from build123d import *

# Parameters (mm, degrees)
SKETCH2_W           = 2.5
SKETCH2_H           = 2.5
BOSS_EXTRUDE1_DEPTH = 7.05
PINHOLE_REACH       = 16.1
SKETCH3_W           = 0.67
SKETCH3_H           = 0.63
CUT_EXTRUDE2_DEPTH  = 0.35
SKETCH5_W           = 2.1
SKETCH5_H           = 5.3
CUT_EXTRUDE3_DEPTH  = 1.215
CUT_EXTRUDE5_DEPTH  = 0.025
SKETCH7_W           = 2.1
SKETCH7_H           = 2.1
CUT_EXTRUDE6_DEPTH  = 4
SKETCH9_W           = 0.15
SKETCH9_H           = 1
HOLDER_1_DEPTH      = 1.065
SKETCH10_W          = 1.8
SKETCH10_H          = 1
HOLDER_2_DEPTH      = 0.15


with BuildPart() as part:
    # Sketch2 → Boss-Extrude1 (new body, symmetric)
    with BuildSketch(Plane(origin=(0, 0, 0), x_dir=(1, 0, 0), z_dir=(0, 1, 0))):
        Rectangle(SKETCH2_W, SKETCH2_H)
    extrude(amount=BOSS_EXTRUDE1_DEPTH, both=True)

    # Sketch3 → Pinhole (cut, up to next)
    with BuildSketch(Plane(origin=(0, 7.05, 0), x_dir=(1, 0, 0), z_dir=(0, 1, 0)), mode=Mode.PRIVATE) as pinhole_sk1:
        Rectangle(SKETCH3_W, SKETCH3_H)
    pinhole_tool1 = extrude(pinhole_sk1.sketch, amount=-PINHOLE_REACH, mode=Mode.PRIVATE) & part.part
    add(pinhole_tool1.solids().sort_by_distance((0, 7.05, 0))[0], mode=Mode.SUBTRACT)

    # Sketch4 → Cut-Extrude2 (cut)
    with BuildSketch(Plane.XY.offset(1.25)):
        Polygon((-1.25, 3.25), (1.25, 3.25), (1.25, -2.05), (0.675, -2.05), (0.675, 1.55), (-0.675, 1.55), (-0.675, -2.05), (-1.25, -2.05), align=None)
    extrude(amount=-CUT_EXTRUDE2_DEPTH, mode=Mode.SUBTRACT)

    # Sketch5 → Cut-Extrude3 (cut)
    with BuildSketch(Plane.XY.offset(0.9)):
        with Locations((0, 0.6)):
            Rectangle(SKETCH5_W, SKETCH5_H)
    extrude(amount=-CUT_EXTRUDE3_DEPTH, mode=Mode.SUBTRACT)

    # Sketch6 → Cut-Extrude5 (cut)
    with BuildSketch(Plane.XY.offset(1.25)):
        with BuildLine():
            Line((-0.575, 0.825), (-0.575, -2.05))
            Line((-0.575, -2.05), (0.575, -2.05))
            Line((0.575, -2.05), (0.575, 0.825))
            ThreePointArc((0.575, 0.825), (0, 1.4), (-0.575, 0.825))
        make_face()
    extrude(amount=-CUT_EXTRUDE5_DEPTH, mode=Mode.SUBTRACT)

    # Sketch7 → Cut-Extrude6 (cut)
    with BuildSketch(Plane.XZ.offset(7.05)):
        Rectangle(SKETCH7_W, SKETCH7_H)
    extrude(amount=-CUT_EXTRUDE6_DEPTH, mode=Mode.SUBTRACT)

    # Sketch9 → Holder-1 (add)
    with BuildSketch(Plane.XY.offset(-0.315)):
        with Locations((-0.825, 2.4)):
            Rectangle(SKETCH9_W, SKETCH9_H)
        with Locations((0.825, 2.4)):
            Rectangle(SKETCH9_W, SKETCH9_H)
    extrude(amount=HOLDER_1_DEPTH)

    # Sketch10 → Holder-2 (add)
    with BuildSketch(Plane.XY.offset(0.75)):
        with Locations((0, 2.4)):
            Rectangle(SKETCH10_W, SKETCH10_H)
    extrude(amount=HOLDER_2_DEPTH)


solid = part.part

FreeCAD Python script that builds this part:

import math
import FreeCAD as App
import Part
import Sketcher

V = App.Vector


def add_polygon(sketch, points):
    """Adds a closed chain of lines whose ends are joined by coincident constraints."""
    first, n = sketch.GeometryCount, len(points)
    for a, b in zip(points, points[1:] + points[:1]):
        sketch.addGeometry(Part.LineSegment(App.Vector(*a, 0), App.Vector(*b, 0)), False)
    for i in range(n):
        sketch.addConstraint(Sketcher.Constraint("Coincident", first + i, 2, first + (i + 1) % n, 1))

doc = App.newDocument("Part")
body = doc.addObject("PartDesign::Body", "Body")

sketch1 = body.newObject("Sketcher::SketchObject", "Sketch")
sketch1.AttachmentSupport = (doc.getObject("XZ_Plane"), [""])
sketch1.MapMode = "FlatFace"
add_polygon(sketch1, [(-1.2, -1.2), (-1.2, 1.2), (1.2, 1.2), (1.2, -1.2)])
sketch1.addConstraint([
    Sketcher.Constraint("Vertical", 0),
    Sketcher.Constraint("Horizontal", 1),
    Sketcher.Constraint("Vertical", 2),
    Sketcher.Constraint("Horizontal", 3),
    Sketcher.Constraint("Symmetric", 0, 2, 2, 2, -1, 1),
    Sketcher.Constraint("Equal", 3, 0),
    Sketcher.Constraint("DistanceX", 1, 1, 1, 2, 2.5),
])
pad1 = body.newObject("PartDesign::Pad", "Pad")
pad1.Profile = sketch1
pad1.Length = 14.1
pad1.Midplane = True

sketch2 = body.newObject("Sketcher::SketchObject", "Sketch001")
sketch2.AttachmentSupport = (doc.getObject("XZ_Plane"), [""])
sketch2.MapMode = "FlatFace"
sketch2.AttachmentOffset = App.Placement(V(0, 0, -7.05), App.Rotation())
add_polygon(sketch2, [(-0.3, -0.3), (-0.3, 0.3), (0.3, 0.3), (0.3, -0.3)])
sketch2.addConstraint([
    Sketcher.Constraint("Vertical", 0),
    Sketcher.Constraint("Horizontal", 1),
    Sketcher.Constraint("Vertical", 2),
    Sketcher.Constraint("Horizontal", 3),
    Sketcher.Constraint("Symmetric", 0, 2, 2, 2, -1, 1),
    Sketcher.Constraint("DistanceX", 1, 1, 1, 2, 0.67),
    Sketcher.Constraint("DistanceY", 0, 1, 0, 2, 0.63),
])
pocket1 = body.newObject("PartDesign::Pocket", "Pocket")
pocket1.Profile = sketch2
pocket1.Type = "UpToFirst"
pocket1.Reversed = True

sketch3 = body.newObject("Sketcher::SketchObject", "Sketch002")
sketch3.AttachmentSupport = (doc.getObject("XY_Plane"), [""])
sketch3.MapMode = "FlatFace"
sketch3.AttachmentOffset = App.Placement(V(0, 0, 1.25), App.Rotation())
add_polygon(sketch3, [(1.2, 3.2), (-1.2, 3.2), (-1.2, -2), (-0.7, -2), (-0.7, 1.6), (0.7, 1.6), (0.7, -2), (1.2, -2)])
sketch3.addConstraint([
    Sketcher.Constraint("Horizontal", 0),
    Sketcher.Constraint("Vertical", 1),
    Sketcher.Constraint("Horizontal", 2),
    Sketcher.Constraint("Vertical", 3),
    Sketcher.Constraint("Horizontal", 4),
    Sketcher.Constraint("Vertical", 5),
    Sketcher.Constraint("Horizontal", 6),
    Sketcher.Constraint("Vertical", 7),
    Sketcher.Constraint("Symmetric", 2, 2, 5, 2, -2),
    Sketcher.Constraint("Equal", 2, 6),
    Sketcher.Constraint("DistanceX", 0, 2, 0, 1, 2.5),
    Sketcher.Constraint("DistanceY", 1, 2, 1, 1, 5.3),
    Sketcher.Constraint("DistanceY", 3, 1, 3, 2, 3.6),
    Sketcher.Constraint("DistanceX", 4, 1, 4, 2, 1.35),
    Sketcher.Constraint("DistanceY", -1, 1, 0, 2, 3.25),
])
pocket2 = body.newObject("PartDesign::Pocket", "Pocket001")
pocket2.Profile = sketch3
pocket2.Length = 0.35

sketch4 = body.newObject("Sketcher::SketchObject", "Sketch003")
sketch4.AttachmentSupport = (doc.getObject("XY_Plane"), [""])
sketch4.MapMode = "FlatFace"
sketch4.AttachmentOffset = App.Placement(V(0, 0, 0.9), App.Rotation())
add_polygon(sketch4, [(-1.1, 3.2), (-1.1, -2), (1.1, -2), (1.1, 3.2)])
sketch4.addConstraint([
    Sketcher.Constraint("Vertical", 0),
    Sketcher.Constraint("Horizontal", 1),
    Sketcher.Constraint("Vertical", 2),
    Sketcher.Constraint("Horizontal", 3),
    Sketcher.Constraint("DistanceX", 1, 1, 1, 2, 2.1),
    Sketcher.Constraint("DistanceY", 0, 2, 0, 1, 5.3),
    Sketcher.Constraint("DistanceX", 0, 2, -1, 1, 1.05),
    Sketcher.Constraint("DistanceY", 0, 2, -1, 1, 2.05),
])
pocket3 = body.newObject("PartDesign::Pocket", "Pocket002")
pocket3.Profile = sketch4
pocket3.Length = 1.215

sketch5 = body.newObject("Sketcher::SketchObject", "Sketch004")
sketch5.AttachmentSupport = (doc.getObject("XY_Plane"), [""])
sketch5.MapMode = "FlatFace"
sketch5.AttachmentOffset = App.Placement(V(0, 0, 1.25), App.Rotation())
sketch5.addGeometry([
    Part.LineSegment(V(-0.6, 0.8, 0), V(-0.6, -2, 0)),
    Part.LineSegment(V(-0.6, -2, 0), V(0.6, -2, 0)),
    Part.LineSegment(V(0.6, -2, 0), V(0.6, 0.8, 0)),
    Part.ArcOfCircle(Part.Circle(V(0, 0.8, 0), V(0, 0, 1), 0.6), math.radians(0), math.radians(180)),
], False)
sketch5.addConstraint([
    Sketcher.Constraint("Coincident", 0, 2, 1, 1),
    Sketcher.Constraint("Coincident", 1, 2, 2, 1),
    Sketcher.Constraint("Tangent", 2, 2, 3, 1),
    Sketcher.Constraint("Tangent", 3, 2, 0, 1),
    Sketcher.Constraint("Vertical", 0),
    Sketcher.Constraint("Horizontal", 1),
    Sketcher.Constraint("Vertical", 2),
    Sketcher.Constraint("PointOnObject", 3, 3, -2),
    Sketcher.Constraint("Radius", 3, 0.575),
    Sketcher.Constraint("DistanceY", 0, 2, 0, 1, 2.875),
    Sketcher.Constraint("DistanceY", 0, 2, -1, 1, 2.05),
])
pocket4 = body.newObject("PartDesign::Pocket", "Pocket003")
pocket4.Profile = sketch5
pocket4.Length = 0.025

sketch6 = body.newObject("Sketcher::SketchObject", "Sketch005")
sketch6.AttachmentSupport = (doc.getObject("XZ_Plane"), [""])
sketch6.MapMode = "FlatFace"
sketch6.AttachmentOffset = App.Placement(V(0, 0, 7.05), App.Rotation())
add_polygon(sketch6, [(-1.1, 1.1), (-1.1, -1.1), (1.1, -1.1), (1.1, 1.1)])
sketch6.addConstraint([
    Sketcher.Constraint("Vertical", 0),
    Sketcher.Constraint("Horizontal", 1),
    Sketcher.Constraint("Vertical", 2),
    Sketcher.Constraint("Horizontal", 3),
    Sketcher.Constraint("Symmetric", 0, 2, 2, 2, -1, 1),
    Sketcher.Constraint("Equal", 3, 0),
    Sketcher.Constraint("DistanceX", 1, 1, 1, 2, 2.1),
])
pocket5 = body.newObject("PartDesign::Pocket", "Pocket004")
pocket5.Profile = sketch6
pocket5.Length = 4

sketch7 = body.newObject("Sketcher::SketchObject", "Sketch006")
sketch7.AttachmentSupport = (doc.getObject("XY_Plane"), [""])
sketch7.MapMode = "FlatFace"
sketch7.AttachmentOffset = App.Placement(V(0, 0, -0.315), App.Rotation())
add_polygon(sketch7, [(-0.9, 2.9), (-0.9, 1.9), (-0.75, 1.9), (-0.75, 2.9)])
add_polygon(sketch7, [(0.75, 2.9), (0.75, 1.9), (0.9, 1.9), (0.9, 2.9)])
sketch7.addConstraint([
    Sketcher.Constraint("Vertical", 0),
    Sketcher.Constraint("Horizontal", 1),
    Sketcher.Constraint("Vertical", 2),
    Sketcher.Constraint("Horizontal", 3),
    Sketcher.Constraint("Vertical", 4),
    Sketcher.Constraint("Horizontal", 5),
    Sketcher.Constraint("Vertical", 6),
    Sketcher.Constraint("Horizontal", 7),
    Sketcher.Constraint("Symmetric", 1, 2, 4, 2, -2),
    Sketcher.Constraint("Symmetric", 3, 2, 6, 2, -2),
    Sketcher.Constraint("DistanceY", 0, 2, 0, 1, 1.0),
    Sketcher.Constraint("DistanceX", 1, 1, 1, 2, 0.15),
    Sketcher.Constraint("DistanceX", 0, 2, -1, 1, 0.9),
    Sketcher.Constraint("DistanceY", -1, 1, 0, 2, 1.9),
])
pad2 = body.newObject("PartDesign::Pad", "Pad001")
pad2.Profile = sketch7
pad2.Length = 1.065

sketch8 = body.newObject("Sketcher::SketchObject", "Sketch007")
sketch8.AttachmentSupport = (doc.getObject("XY_Plane"), [""])
sketch8.MapMode = "FlatFace"
sketch8.AttachmentOffset = App.Placement(V(0, 0, 0.75), App.Rotation())
add_polygon(sketch8, [(-0.9, 2.9), (-0.9, 1.9), (0.9, 1.9), (0.9, 2.9)])
sketch8.addConstraint([
    Sketcher.Constraint("Vertical", 0),
    Sketcher.Constraint("Horizontal", 1),
    Sketcher.Constraint("Vertical", 2),
    Sketcher.Constraint("Horizontal", 3),
    Sketcher.Constraint("DistanceY", 0, 2, 0, 1, 1.0),
    Sketcher.Constraint("DistanceX", 1, 1, 1, 2, 1.8),
    Sketcher.Constraint("DistanceX", 0, 2, -1, 1, 0.9),
    Sketcher.Constraint("DistanceY", -1, 1, 0, 2, 1.9),
])
pad3 = body.newObject("PartDesign::Pad", "Pad002")
pad3.Profile = sketch8
pad3.Length = 0.15

doc.recompute()
